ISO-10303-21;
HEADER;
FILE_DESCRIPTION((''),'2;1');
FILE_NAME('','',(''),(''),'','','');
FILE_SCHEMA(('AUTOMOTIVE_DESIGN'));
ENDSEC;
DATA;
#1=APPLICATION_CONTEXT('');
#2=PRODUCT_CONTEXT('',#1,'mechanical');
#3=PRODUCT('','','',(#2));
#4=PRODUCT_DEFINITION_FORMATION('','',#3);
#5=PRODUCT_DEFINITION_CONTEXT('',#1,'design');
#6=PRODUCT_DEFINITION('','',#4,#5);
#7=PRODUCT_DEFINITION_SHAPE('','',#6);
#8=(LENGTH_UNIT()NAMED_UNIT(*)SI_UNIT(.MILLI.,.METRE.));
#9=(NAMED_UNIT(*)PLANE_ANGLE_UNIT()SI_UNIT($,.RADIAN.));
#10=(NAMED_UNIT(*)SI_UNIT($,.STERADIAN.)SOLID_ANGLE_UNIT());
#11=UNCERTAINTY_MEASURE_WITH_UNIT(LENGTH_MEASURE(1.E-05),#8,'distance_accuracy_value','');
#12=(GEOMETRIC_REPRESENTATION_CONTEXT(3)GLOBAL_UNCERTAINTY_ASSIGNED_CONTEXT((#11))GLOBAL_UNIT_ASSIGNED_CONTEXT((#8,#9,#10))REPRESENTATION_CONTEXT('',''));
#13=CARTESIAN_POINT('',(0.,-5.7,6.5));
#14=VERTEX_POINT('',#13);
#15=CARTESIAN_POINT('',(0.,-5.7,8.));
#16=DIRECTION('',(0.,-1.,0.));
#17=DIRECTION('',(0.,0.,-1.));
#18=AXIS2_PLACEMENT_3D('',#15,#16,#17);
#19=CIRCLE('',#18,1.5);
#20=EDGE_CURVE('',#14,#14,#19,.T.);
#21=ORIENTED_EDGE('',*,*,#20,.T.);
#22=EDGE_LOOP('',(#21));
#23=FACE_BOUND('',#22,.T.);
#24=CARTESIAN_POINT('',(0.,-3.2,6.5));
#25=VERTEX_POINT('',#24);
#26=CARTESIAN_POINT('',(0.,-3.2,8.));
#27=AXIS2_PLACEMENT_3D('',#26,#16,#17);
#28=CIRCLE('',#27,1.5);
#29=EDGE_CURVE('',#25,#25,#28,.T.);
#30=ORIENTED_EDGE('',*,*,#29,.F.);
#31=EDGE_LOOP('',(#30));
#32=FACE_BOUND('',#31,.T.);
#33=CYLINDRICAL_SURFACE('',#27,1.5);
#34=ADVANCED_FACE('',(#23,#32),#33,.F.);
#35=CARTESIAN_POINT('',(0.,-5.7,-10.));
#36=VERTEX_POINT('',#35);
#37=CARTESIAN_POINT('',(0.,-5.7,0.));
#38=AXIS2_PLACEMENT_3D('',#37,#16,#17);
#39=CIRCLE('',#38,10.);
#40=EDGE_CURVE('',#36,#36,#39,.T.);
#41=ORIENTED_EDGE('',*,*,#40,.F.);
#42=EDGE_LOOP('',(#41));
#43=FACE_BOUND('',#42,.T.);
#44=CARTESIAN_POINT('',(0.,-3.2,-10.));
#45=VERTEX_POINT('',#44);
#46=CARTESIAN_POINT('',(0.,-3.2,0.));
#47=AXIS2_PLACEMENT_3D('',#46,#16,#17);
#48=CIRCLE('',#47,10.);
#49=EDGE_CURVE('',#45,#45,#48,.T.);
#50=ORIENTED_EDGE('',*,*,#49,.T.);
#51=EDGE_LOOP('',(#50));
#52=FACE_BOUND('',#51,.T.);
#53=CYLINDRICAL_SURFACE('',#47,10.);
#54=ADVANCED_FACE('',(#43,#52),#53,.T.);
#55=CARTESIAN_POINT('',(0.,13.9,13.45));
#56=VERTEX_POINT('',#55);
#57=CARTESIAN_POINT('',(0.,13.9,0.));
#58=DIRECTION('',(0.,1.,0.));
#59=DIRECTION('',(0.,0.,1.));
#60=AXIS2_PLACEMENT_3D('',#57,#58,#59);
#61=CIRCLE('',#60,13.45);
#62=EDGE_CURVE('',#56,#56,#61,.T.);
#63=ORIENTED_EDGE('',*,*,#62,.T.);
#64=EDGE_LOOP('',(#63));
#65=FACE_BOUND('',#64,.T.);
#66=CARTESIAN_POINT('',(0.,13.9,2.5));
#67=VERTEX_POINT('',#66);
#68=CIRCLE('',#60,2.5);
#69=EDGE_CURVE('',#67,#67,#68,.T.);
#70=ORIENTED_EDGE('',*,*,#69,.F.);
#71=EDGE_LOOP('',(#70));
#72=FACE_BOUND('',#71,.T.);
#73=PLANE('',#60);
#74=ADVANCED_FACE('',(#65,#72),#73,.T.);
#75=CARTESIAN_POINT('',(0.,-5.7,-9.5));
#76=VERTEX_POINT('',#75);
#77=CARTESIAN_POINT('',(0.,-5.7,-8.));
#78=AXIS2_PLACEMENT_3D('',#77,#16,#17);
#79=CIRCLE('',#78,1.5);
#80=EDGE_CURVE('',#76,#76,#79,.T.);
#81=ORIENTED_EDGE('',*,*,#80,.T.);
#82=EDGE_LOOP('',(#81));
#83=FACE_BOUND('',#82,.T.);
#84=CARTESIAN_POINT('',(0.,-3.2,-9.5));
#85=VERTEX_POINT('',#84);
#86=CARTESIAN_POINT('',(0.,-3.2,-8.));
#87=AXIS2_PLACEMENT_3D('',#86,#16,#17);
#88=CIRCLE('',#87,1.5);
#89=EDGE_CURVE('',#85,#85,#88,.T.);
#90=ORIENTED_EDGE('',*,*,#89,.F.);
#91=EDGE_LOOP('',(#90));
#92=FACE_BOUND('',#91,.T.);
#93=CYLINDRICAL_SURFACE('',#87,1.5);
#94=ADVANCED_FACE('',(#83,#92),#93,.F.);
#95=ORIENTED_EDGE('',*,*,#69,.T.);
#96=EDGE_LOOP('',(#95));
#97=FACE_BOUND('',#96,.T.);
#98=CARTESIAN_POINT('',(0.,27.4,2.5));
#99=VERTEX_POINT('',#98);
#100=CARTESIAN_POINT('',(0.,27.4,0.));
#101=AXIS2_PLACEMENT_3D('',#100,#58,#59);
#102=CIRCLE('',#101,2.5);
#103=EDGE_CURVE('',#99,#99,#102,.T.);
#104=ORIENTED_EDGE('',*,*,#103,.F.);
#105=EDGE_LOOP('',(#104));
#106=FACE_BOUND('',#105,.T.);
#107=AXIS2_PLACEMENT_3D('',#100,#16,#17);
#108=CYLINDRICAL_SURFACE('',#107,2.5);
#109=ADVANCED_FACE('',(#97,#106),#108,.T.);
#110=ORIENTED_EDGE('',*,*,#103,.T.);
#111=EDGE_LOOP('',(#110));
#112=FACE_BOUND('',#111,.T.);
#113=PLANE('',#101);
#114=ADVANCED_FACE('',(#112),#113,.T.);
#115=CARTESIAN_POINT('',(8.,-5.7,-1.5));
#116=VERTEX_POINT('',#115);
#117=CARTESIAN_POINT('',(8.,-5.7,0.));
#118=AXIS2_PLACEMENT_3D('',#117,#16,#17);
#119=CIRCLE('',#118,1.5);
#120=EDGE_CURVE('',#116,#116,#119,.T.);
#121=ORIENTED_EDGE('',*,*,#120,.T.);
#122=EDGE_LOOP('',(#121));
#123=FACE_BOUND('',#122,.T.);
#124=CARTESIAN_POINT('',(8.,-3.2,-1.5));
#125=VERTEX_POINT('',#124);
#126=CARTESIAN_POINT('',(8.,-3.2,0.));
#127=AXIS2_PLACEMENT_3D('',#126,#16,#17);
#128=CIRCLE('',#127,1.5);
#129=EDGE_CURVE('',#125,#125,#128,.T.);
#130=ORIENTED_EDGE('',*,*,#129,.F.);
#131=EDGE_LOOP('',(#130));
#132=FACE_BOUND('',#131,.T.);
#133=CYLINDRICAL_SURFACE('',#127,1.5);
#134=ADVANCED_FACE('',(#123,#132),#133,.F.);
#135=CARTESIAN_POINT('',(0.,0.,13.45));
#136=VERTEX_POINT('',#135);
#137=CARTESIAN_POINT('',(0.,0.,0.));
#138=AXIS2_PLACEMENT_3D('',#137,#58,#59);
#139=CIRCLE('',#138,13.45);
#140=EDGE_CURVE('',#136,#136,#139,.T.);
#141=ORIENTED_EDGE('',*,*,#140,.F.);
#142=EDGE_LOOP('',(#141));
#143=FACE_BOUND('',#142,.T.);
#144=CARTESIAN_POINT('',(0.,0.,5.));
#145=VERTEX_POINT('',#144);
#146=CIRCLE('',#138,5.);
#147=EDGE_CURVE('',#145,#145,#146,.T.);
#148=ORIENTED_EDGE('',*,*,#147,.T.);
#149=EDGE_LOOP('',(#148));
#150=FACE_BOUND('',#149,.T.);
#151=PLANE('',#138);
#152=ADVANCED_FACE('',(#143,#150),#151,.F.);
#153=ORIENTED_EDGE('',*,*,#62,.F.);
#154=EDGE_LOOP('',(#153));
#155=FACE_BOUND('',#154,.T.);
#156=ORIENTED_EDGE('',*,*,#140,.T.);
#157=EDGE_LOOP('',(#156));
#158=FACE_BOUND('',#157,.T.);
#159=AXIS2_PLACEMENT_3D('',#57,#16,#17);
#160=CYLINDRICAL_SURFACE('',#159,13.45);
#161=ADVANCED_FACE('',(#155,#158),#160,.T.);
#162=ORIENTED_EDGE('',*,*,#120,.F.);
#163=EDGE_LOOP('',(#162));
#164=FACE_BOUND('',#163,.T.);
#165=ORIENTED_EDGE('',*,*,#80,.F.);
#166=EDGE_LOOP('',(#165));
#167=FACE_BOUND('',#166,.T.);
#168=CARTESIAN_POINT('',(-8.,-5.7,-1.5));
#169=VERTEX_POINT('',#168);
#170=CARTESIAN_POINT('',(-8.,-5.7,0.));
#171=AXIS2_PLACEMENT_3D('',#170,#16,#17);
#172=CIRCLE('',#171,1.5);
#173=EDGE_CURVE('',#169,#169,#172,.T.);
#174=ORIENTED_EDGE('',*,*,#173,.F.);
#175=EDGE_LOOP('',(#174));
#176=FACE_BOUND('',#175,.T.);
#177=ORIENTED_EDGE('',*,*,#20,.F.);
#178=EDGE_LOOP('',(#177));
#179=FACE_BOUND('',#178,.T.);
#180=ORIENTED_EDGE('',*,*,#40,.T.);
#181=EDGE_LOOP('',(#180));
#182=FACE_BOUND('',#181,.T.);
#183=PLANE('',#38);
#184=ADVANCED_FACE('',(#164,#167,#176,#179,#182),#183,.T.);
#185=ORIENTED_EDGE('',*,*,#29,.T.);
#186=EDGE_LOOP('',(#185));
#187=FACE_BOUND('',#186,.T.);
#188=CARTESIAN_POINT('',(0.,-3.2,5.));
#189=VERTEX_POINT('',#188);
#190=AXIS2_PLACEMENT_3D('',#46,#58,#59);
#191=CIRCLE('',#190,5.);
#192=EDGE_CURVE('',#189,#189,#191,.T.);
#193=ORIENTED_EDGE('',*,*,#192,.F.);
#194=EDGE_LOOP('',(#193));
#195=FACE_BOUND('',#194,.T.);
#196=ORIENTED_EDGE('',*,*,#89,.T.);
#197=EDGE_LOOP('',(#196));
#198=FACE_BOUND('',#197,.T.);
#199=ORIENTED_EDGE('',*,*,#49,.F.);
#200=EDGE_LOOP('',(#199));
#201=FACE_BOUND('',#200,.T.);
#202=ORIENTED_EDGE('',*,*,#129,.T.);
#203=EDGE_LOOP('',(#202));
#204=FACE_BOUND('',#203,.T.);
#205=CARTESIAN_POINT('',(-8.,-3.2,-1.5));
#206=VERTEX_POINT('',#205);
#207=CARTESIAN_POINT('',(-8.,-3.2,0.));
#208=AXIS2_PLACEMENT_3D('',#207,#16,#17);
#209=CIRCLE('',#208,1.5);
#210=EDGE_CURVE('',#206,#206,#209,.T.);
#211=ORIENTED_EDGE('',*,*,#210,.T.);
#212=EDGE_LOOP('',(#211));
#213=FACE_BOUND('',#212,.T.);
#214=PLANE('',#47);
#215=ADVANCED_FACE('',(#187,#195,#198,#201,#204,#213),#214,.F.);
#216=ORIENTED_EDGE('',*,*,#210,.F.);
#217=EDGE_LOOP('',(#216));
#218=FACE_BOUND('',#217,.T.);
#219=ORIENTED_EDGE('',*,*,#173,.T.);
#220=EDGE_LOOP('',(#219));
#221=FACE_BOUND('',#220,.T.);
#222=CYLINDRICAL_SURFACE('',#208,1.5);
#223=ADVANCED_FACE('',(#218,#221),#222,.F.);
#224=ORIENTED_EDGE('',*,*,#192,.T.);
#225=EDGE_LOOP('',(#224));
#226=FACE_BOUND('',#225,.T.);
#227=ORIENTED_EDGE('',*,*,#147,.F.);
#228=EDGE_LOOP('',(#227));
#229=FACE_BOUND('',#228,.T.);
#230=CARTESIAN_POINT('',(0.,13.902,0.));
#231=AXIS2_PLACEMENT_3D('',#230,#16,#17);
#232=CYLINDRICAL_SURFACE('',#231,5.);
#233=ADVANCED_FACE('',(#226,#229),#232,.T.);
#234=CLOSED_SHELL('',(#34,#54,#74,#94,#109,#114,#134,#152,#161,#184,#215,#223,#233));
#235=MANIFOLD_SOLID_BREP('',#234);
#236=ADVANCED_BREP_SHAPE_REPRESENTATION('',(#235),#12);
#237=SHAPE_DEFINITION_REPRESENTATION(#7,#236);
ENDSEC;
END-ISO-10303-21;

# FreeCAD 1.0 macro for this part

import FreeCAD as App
import Part
import Sketcher
from FreeCAD import Vector

doc = App.newDocument("Part")
body = doc.addObject("PartDesign::Body", "Body")

# Sketch on XZ plane
sketch1 = body.newObject("Sketcher::SketchObject", "Sketch")
sketch1.AttachmentSupport = (doc.getObject("XZ_Plane"), [""])
sketch1.MapMode = "FlatFace"
sketch1.addGeometry(Part.Circle(Vector(0, 0, 0), Vector(0, 0, 1), 13), False)
sketch1.addConstraint([
    Sketcher.Constraint("Coincident", 0, 3, -1, 1),
    Sketcher.Constraint("Diameter", 0, 26.9),
])
pad1 = body.newObject("PartDesign::Pad", "Pad")
pad1.Profile = sketch1
pad1.Length = 13.9
pad1.Reversed = True
body2 = doc.addObject("PartDesign::Body", "Body001")

# Sketch on XZ plane
sketch2 = body2.newObject("Sketcher::SketchObject", "Sketch001")
sketch2.AttachmentSupport = (doc.getObject("XZ_Plane001"), [""])
sketch2.MapMode = "FlatFace"
sketch2.AttachmentOffset = App.Placement(Vector(0, 0, 5.7), App.Rotation())
sketch2.addGeometry([
    Part.Circle(Vector(0, 0, 0), Vector(0, 0, 1), 10),  # 0
    Part.Circle(Vector(0, 8, 0), Vector(0, 0, 1), 1.5),  # 1
    Part.Circle(Vector(-8, 0, 0), Vector(0, 0, 1), 1.5),  # 2
    Part.Circle(Vector(8, 0, 0), Vector(0, 0, 1), 1.5),  # 3
    Part.Circle(Vector(0, -8, 0), Vector(0, 0, 1), 1.5),  # 4
], False)
sketch2.addConstraint([
    Sketcher.Constraint("Coincident", 0, 3, -1, 1),
    Sketcher.Constraint("Equal", 1, 2),
    Sketcher.Constraint("Equal", 2, 3),
    Sketcher.Constraint("Equal", 3, 4),
    Sketcher.Constraint("Symmetric", 2, 3, 3, 3, -1, 1),
    Sketcher.Constraint("Symmetric", 1, 3, 4, 3, -1, 1),
    Sketcher.Constraint("PointOnObject", 1, 3, -2),
    Sketcher.Constraint("PointOnObject", 2, 3, -1),
    Sketcher.Constraint("Diameter", 0, 20.0),
    Sketcher.Constraint("Diameter", 1, 3.0),
    Sketcher.Constraint("DistanceY", -1, 1, 1, 3, 8.0),
    Sketcher.Constraint("DistanceX", 2, 3, -1, 1, 8.0),
])
pad2 = body2.newObject("PartDesign::Pad", "Pad001")
pad2.Profile = sketch2
pad2.Length = 2.5
pad2.Reversed = True
body.AllowCompound = True
doc.recompute()

boolean = body.newObject("PartDesign::Boolean", "Boolean")
boolean.Type = "Fuse"
boolean.addObjects([body2])

# Sketch on XZ plane
sketch3 = body.newObject("Sketcher::SketchObject", "Sketch002")
sketch3.AttachmentSupport = (doc.getObject("XZ_Plane"), [""])
sketch3.MapMode = "FlatFace"
sketch3.AttachmentOffset = App.Placement(Vector(0, 0, 3.2), App.Rotation())
sketch3.addGeometry(Part.Circle(Vector(0, 0, 0), Vector(0, 0, 1), 5), False)
sketch3.addConstraint([
    Sketcher.Constraint("Coincident", 0, 3, -1, 1),
    Sketcher.Constraint("Diameter", 0, 10.0),
])
pad3 = body.newObject("PartDesign::Pad", "Pad002")
pad3.Profile = sketch3
pad3.Type = "UpToFirst"
pad3.Reversed = True

# Sketch on XZ plane
sketch4 = body.newObject("Sketcher::SketchObject", "Sketch003")
sketch4.AttachmentSupport = (doc.getObject("XZ_Plane"), [""])
sketch4.MapMode = "FlatFace"
sketch4.AttachmentOffset = App.Placement(Vector(0, 0, -13.9), App.Rotation())
sketch4.addGeometry(Part.Circle(Vector(0, 0, 0), Vector(0, 0, 1), 2.5), False)
sketch4.addConstraint([
    Sketcher.Constraint("Coincident", 0, 3, -1, 1),
    Sketcher.Constraint("Diameter", 0, 5.0),
])
pad4 = body.newObject("PartDesign::Pad", "Pad003")
pad4.Profile = sketch4
pad4.Length = 13.5
pad4.Reversed = True

doc.recompute()
